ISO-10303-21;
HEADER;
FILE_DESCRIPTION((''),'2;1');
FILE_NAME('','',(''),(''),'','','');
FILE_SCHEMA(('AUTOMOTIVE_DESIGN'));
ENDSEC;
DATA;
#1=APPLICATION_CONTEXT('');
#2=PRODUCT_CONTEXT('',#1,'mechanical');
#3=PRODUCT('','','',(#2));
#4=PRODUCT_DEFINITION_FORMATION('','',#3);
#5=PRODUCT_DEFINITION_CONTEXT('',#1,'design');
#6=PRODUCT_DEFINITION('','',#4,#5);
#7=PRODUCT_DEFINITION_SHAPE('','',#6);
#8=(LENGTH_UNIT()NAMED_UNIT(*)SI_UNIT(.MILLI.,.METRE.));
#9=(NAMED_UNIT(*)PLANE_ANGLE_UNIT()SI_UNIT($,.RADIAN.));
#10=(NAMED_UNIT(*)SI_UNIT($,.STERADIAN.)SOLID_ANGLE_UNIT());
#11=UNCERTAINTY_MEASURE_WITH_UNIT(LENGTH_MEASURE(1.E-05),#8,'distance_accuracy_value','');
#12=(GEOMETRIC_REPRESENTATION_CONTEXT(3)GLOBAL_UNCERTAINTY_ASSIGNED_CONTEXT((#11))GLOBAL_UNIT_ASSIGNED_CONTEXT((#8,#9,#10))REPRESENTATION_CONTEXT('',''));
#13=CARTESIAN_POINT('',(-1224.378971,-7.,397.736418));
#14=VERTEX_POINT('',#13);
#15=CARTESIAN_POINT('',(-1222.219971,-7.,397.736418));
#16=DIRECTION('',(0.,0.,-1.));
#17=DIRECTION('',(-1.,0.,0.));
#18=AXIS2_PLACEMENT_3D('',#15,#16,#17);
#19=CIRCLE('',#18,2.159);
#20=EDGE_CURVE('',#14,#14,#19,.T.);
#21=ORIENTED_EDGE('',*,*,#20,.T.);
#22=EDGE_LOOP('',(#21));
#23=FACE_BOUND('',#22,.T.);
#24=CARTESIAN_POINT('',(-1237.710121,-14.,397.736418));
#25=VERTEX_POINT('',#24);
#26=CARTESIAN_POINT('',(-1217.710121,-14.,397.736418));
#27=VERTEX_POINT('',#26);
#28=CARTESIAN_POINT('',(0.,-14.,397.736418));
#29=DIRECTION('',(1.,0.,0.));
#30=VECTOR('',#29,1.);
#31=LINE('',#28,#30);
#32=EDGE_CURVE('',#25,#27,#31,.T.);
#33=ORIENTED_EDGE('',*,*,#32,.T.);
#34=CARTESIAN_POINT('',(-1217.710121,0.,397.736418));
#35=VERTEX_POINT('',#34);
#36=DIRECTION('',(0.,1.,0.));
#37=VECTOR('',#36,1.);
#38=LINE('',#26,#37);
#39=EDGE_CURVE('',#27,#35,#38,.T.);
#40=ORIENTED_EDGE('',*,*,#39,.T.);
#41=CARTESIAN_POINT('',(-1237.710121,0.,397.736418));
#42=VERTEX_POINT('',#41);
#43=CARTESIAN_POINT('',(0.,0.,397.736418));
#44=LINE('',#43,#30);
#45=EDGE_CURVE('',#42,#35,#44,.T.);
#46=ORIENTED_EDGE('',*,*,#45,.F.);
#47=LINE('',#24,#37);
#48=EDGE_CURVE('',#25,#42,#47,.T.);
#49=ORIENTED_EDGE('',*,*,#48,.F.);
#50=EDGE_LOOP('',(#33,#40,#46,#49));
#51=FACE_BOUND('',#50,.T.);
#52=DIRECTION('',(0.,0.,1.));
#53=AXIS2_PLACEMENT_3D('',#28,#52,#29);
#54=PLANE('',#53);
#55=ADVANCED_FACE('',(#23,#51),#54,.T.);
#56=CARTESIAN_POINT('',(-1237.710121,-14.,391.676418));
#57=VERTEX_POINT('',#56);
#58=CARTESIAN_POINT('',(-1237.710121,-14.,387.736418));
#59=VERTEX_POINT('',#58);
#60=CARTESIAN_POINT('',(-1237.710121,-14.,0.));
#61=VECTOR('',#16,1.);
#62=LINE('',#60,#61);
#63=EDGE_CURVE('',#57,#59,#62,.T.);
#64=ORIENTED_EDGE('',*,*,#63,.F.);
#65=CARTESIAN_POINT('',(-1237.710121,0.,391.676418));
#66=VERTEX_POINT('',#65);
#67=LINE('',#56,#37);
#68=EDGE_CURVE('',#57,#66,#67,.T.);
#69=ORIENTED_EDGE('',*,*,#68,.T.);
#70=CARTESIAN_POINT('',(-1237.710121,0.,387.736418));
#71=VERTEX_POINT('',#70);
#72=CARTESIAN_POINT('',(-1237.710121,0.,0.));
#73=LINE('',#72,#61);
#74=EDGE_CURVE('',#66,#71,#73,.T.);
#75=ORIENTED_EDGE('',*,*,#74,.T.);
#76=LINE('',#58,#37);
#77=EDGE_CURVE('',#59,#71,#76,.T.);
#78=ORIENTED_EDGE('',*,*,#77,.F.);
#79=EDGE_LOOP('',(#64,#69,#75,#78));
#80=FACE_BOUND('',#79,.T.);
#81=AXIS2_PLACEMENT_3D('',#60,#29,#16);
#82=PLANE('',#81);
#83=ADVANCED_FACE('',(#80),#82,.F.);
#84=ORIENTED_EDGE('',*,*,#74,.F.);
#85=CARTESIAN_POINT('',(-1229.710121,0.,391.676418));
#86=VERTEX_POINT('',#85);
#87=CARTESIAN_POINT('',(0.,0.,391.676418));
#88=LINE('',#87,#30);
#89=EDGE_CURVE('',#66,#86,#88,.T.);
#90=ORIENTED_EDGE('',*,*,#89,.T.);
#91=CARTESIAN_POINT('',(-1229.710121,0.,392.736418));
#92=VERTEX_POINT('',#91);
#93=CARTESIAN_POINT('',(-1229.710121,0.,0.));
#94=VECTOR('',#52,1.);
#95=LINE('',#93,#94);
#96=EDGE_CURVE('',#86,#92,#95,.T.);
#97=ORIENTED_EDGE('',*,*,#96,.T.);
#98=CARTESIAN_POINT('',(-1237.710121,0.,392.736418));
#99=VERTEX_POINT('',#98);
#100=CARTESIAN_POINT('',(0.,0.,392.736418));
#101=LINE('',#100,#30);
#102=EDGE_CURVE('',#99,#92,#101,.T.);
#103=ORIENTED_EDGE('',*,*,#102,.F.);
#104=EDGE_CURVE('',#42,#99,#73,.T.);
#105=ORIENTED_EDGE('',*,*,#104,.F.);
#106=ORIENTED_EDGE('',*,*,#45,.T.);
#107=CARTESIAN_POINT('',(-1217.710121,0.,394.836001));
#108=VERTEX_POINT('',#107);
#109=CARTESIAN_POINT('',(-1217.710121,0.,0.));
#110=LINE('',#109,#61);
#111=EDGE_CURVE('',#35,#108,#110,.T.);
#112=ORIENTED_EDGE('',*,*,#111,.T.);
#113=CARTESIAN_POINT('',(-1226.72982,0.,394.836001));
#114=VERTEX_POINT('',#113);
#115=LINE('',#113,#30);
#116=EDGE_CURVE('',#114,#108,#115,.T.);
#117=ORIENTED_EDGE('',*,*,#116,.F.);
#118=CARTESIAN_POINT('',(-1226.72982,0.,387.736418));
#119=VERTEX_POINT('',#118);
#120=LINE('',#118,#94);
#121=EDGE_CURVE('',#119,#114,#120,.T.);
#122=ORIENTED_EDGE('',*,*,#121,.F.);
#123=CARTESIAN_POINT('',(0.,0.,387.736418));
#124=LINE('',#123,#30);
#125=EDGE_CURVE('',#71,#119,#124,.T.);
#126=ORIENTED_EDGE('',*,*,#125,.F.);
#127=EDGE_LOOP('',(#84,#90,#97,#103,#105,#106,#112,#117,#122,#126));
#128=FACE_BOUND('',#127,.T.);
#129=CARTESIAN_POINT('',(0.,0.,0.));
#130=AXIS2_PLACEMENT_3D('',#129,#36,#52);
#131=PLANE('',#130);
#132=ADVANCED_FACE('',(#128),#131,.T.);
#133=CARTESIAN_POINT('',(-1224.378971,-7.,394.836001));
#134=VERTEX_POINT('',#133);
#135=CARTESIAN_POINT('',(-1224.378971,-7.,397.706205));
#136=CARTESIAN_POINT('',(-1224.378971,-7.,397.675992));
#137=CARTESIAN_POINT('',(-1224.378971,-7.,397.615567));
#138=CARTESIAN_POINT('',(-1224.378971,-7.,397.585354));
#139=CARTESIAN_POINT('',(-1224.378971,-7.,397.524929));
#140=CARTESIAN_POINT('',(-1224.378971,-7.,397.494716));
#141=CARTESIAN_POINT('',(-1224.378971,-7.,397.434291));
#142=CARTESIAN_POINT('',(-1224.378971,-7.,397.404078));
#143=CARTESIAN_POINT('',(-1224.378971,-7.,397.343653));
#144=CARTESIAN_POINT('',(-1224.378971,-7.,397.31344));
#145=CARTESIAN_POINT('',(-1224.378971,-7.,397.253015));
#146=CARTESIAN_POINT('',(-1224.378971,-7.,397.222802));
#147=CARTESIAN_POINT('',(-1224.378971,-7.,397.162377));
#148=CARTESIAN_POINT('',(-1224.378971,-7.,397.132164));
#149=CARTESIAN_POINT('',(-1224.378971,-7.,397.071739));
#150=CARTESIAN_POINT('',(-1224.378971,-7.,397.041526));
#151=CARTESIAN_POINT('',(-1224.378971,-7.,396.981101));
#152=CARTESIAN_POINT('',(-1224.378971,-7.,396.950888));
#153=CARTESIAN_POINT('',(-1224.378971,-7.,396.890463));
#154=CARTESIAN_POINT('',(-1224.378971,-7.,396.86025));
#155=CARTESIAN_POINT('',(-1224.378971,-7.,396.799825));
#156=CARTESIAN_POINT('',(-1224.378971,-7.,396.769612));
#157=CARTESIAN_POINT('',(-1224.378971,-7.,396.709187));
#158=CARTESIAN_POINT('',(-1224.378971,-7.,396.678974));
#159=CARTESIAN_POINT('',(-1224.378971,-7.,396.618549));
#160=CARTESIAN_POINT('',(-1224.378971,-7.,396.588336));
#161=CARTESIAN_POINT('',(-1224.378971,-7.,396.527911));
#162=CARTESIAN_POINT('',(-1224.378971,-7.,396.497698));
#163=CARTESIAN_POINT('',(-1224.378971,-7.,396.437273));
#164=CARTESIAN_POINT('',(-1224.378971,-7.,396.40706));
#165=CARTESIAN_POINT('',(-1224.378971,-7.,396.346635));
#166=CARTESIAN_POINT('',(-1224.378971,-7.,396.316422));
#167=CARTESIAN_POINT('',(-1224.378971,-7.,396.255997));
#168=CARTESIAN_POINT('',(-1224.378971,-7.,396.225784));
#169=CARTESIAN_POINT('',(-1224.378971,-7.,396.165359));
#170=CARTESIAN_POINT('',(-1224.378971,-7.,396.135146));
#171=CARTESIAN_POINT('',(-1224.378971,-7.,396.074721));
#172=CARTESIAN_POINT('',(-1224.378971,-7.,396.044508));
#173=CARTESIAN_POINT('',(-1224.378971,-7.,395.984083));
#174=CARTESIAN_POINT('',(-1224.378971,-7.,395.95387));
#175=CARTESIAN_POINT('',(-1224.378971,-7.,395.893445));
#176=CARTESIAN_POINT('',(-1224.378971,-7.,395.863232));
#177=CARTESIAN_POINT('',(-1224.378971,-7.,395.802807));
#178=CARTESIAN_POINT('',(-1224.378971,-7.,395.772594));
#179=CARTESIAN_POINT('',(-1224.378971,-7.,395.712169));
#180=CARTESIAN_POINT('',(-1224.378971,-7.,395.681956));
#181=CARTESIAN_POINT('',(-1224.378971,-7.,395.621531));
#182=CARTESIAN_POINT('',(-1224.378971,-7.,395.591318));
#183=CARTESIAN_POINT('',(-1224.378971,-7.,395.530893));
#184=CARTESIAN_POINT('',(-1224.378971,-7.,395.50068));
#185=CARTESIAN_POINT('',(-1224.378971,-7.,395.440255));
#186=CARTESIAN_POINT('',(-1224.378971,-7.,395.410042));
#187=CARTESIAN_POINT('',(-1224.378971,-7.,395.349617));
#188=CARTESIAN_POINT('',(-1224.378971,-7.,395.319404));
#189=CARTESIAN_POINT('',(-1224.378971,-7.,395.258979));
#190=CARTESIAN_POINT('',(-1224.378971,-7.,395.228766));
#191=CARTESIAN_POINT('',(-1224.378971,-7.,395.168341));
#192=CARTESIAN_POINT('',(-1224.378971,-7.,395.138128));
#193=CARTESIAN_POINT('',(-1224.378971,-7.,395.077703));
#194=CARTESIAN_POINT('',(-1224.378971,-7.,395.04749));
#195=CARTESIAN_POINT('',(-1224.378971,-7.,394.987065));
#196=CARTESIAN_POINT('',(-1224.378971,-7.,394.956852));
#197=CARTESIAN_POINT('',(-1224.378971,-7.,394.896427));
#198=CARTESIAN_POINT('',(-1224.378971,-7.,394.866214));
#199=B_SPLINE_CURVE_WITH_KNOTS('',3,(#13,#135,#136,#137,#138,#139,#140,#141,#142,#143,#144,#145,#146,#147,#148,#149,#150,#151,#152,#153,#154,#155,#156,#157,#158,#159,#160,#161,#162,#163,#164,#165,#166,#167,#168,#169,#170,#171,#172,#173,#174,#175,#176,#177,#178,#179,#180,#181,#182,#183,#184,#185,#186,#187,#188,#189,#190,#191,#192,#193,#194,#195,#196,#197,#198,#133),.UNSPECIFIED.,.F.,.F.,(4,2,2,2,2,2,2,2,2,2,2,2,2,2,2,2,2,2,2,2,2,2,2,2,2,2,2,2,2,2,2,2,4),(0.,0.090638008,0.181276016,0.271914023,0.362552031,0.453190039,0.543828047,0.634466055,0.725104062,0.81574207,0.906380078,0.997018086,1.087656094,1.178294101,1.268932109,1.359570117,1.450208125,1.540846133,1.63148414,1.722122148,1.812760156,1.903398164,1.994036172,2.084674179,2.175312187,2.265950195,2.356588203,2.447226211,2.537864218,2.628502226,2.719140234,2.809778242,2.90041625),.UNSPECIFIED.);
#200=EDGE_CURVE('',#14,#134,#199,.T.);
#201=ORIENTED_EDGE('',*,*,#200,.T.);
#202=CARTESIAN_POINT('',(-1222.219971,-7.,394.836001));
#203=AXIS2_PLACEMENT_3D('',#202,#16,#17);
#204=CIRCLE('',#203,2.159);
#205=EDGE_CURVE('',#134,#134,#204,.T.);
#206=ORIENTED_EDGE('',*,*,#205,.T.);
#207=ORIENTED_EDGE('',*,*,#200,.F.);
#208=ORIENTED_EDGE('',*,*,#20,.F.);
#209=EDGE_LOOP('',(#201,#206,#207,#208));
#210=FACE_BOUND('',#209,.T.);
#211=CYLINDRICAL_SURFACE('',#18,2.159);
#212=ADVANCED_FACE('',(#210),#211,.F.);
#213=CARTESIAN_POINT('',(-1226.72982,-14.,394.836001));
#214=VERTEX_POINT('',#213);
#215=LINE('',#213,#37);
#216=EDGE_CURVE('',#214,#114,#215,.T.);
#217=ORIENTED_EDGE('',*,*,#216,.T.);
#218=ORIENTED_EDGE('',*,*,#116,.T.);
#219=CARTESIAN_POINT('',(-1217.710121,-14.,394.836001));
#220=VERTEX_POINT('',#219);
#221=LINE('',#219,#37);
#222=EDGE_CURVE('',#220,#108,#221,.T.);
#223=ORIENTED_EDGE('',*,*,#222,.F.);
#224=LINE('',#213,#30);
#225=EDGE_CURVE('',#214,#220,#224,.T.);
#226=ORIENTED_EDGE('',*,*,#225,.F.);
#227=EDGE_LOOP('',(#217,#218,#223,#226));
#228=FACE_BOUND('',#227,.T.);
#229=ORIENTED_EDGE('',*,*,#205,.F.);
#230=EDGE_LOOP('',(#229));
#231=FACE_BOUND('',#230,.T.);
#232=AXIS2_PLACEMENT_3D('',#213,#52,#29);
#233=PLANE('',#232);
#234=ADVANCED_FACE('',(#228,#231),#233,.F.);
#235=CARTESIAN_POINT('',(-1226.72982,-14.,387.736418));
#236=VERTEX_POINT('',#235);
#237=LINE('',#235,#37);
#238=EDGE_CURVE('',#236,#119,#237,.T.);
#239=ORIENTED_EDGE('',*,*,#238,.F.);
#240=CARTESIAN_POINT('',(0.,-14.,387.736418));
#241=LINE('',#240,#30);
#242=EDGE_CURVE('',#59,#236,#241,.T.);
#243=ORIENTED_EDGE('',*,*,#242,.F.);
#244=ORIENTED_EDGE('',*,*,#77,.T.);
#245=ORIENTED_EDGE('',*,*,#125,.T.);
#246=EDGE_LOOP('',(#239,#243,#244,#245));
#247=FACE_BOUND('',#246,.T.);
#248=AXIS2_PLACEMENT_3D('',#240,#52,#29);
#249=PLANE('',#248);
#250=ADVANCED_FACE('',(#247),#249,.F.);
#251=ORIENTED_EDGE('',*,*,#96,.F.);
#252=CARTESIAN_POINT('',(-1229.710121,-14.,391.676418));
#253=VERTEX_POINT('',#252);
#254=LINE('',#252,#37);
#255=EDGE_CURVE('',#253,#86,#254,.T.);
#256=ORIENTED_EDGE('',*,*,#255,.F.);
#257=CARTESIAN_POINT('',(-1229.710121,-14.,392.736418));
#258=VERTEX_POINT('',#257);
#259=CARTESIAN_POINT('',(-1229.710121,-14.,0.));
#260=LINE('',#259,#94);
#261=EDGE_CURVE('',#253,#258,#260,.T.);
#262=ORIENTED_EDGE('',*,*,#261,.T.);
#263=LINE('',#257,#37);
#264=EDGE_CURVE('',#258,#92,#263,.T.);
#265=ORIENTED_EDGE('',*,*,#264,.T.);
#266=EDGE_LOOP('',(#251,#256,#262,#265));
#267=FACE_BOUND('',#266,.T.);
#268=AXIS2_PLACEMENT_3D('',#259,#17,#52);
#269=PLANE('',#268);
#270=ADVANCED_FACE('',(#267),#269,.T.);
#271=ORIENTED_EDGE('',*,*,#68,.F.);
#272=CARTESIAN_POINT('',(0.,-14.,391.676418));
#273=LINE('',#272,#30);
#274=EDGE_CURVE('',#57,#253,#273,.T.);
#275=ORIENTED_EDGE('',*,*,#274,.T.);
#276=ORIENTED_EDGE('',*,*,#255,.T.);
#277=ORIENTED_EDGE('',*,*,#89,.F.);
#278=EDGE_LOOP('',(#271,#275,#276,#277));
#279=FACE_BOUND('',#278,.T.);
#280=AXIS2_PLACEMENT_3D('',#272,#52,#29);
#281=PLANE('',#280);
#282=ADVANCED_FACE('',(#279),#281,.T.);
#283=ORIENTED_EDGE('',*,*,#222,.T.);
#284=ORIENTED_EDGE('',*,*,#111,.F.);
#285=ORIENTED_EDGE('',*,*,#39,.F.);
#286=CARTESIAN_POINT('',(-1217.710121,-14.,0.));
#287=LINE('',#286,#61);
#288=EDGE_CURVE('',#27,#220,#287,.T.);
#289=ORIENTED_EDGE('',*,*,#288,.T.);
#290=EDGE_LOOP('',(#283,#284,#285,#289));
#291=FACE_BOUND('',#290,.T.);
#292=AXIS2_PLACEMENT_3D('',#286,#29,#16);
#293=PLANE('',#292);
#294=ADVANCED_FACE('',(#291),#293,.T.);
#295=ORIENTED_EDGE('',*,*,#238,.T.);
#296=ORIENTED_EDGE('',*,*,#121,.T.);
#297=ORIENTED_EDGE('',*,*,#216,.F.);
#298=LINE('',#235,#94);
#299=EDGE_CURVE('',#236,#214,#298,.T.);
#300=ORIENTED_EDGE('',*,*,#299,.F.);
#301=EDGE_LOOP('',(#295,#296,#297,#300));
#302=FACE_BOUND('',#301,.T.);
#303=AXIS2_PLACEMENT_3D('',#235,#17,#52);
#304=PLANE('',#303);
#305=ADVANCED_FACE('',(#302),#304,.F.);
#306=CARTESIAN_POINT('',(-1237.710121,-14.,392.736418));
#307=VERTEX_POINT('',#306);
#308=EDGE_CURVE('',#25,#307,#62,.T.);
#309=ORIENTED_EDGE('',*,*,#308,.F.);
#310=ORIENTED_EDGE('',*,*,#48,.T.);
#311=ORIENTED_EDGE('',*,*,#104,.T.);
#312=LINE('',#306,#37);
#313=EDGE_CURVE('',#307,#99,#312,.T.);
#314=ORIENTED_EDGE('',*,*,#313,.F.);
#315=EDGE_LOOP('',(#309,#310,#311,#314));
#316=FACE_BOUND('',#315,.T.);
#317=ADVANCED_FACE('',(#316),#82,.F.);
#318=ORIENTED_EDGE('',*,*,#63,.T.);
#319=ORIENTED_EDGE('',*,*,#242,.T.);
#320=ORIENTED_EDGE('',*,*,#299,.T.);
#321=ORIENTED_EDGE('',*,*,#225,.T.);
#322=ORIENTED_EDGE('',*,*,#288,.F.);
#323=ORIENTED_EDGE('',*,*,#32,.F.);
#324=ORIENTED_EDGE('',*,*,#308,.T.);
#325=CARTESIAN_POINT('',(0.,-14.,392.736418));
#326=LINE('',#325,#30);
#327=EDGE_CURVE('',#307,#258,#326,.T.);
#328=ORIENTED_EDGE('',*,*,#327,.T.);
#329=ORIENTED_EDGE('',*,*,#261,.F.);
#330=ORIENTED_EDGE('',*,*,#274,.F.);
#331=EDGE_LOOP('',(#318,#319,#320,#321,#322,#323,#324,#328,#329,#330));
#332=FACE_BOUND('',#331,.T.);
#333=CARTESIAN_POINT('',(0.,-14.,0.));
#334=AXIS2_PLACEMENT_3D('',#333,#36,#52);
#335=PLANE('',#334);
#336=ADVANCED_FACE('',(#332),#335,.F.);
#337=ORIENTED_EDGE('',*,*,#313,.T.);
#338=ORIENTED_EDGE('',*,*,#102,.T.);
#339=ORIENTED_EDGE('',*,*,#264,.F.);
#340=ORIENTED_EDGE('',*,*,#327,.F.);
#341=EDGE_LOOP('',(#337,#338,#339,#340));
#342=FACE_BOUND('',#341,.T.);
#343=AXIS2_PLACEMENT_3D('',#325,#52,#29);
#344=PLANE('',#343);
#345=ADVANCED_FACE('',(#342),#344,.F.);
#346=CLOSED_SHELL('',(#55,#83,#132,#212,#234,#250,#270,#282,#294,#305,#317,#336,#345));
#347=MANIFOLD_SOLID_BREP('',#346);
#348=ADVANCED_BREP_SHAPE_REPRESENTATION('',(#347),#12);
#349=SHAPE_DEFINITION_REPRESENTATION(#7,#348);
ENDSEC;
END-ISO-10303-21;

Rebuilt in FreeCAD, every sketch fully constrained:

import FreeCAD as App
import Part
import Sketcher
from FreeCAD import Vector
Q = App.Units.Quantity

doc = App.newDocument("Part")
body = doc.addObject("PartDesign::Body", "Body")

# Sketch on XZ plane
sketch1 = body.newObject("Sketcher::SketchObject", "Sketch")
sketch1.AttachmentSupport = (doc.getObject("XZ_Plane"), [""])
sketch1.MapMode = "FlatFace"
sketch1.addGeometry(Part.LineSegment(Vector(-1237.7, 392.7, 0), Vector(-1237.7, 397.7, 0)), False)
sketch1.addGeometry(Part.LineSegment(Vector(-1237.7, 397.7, 0), Vector(-1217.7, 397.7, 0)), False)
sketch1.addGeometry(Part.LineSegment(Vector(-1217.7, 397.7, 0), Vector(-1217.7, 387.7, 0)), False)
sketch1.addGeometry(Part.LineSegment(Vector(-1217.7, 387.7, 0), Vector(-1237.7, 387.7, 0)), False)
sketch1.addGeometry(Part.LineSegment(Vector(-1237.7, 387.7, 0), Vector(-1237.7, 391.7, 0)), False)
sketch1.addGeometry(Part.LineSegment(Vector(-1237.7, 391.7, 0), Vector(-1229.7, 391.7, 0)), False)
sketch1.addGeometry(Part.LineSegment(Vector(-1229.7, 391.7, 0), Vector(-1229.7, 392.7, 0)), False)
sketch1.addGeometry(Part.LineSegment(Vector(-1229.7, 392.7, 0), Vector(-1237.7, 392.7, 0)), False)
sketch1.addConstraint(Sketcher.Constraint("Coincident", 0, 2, 1, 1))
sketch1.addConstraint(Sketcher.Constraint("Coincident", 1, 2, 2, 1))
sketch1.addConstraint(Sketcher.Constraint("Coincident", 2, 2, 3, 1))
sketch1.addConstraint(Sketcher.Constraint("Coincident", 3, 2, 4, 1))
sketch1.addConstraint(Sketcher.Constraint("Coincident", 4, 2, 5, 1))
sketch1.addConstraint(Sketcher.Constraint("Coincident", 5, 2, 6, 1))
sketch1.addConstraint(Sketcher.Constraint("Coincident", 6, 2, 7, 1))
sketch1.addConstraint(Sketcher.Constraint("Coincident", 7, 2, 0, 1))
sketch1.addConstraint(Sketcher.Constraint("Vertical", 0))
sketch1.addConstraint(Sketcher.Constraint("Horizontal", 1))
sketch1.addConstraint(Sketcher.Constraint("Vertical", 2))
sketch1.addConstraint(Sketcher.Constraint("Horizontal", 3))
sketch1.addConstraint(Sketcher.Constraint("Vertical", 4))
sketch1.addConstraint(Sketcher.Constraint("Horizontal", 5))
sketch1.addConstraint(Sketcher.Constraint("Vertical", 6))
sketch1.addConstraint(Sketcher.Constraint("Horizontal", 7))
sketch1.addConstraint(Sketcher.Constraint("Vertical", 0, 2, 3, 2))
sketch1.addConstraint(Sketcher.Constraint("DistanceX", 1, 1, 1, 2, Q("20 mm")))
sketch1.addConstraint(Sketcher.Constraint("DistanceX", 5, 1, 5, 2, Q("8 mm")))
sketch1.addConstraint(Sketcher.Constraint("DistanceY", 0, 1, 0, 2, Q("5 mm")))
sketch1.addConstraint(Sketcher.Constraint("DistanceY", 2, 2, 2, 1, Q("10 mm")))
sketch1.addConstraint(Sketcher.Constraint("DistanceY", 4, 1, 4, 2, Q("3.94 mm")))
sketch1.addConstraint(Sketcher.Constraint("DistanceX", 0, 2, -1, 1, Q("1237.710121 mm")))
sketch1.addConstraint(Sketcher.Constraint("DistanceY", -1, 1, 0, 2, Q("397.736418 mm")))
pad1 = body.newObject("PartDesign::Pad", "Pad")
pad1.Profile = sketch1
pad1.Length = 14

# Sketch on XZ plane
sketch2 = body.newObject("Sketcher::SketchObject", "Sketch001")
sketch2.AttachmentSupport = (doc.getObject("XZ_Plane"), [""])
sketch2.MapMode = "FlatFace"
sketch2.addGeometry(Part.LineSegment(Vector(-1227, 388, 0), Vector(-1227, 395, 0)), False)
sketch2.addGeometry(Part.LineSegment(Vector(-1227, 395, 0), Vector(-1218, 395, 0)), False)
sketch2.addGeometry(Part.LineSegment(Vector(-1218, 395, 0), Vector(-1218, 388, 0)), False)
sketch2.addGeometry(Part.LineSegment(Vector(-1218, 388, 0), Vector(-1227, 388, 0)), False)
sketch2.addConstraint(Sketcher.Constraint("Coincident", 0, 2, 1, 1))
sketch2.addConstraint(Sketcher.Constraint("Coincident", 1, 2, 2, 1))
sketch2.addConstraint(Sketcher.Constraint("Coincident", 2, 2, 3, 1))
sketch2.addConstraint(Sketcher.Constraint("Coincident", 3, 2, 0, 1))
sketch2.addConstraint(Sketcher.Constraint("Vertical", 0))
sketch2.addConstraint(Sketcher.Constraint("Horizontal", 1))
sketch2.addConstraint(Sketcher.Constraint("Vertical", 2))
sketch2.addConstraint(Sketcher.Constraint("Horizontal", 3))
sketch2.addConstraint(Sketcher.Constraint("DistanceX", 1, 1, 1, 2, Q("9.019699 mm")))
sketch2.addConstraint(Sketcher.Constraint("DistanceY", -1, 1, 0, 2, Q("394.836001 mm")))
sketch2.addConstraint(Sketcher.Constraint("DistanceY", 0, 1, 0, 2, Q("7.099584 mm")))
sketch2.addConstraint(Sketcher.Constraint("DistanceX", 0, 2, -1, 1, Q("1226.72982 mm")))
pocket1 = body.newObject("PartDesign::Pocket", "Pocket")
pocket1.Profile = sketch2
pocket1.Type = "ThroughAll"
pocket1.Reversed = True

# Sketch on XY plane
sketch3 = body.newObject("Sketcher::SketchObject", "Sketch002")
sketch3.AttachmentSupport = (doc.getObject("XY_Plane"), [""])
sketch3.MapMode = "FlatFace"
sketch3.AttachmentOffset = App.Placement(Vector(0, 0, 394.836001), App.Rotation())
sketch3.addGeometry(Part.Circle(Vector(-1222.2, -7, 0), Vector(0, 0, 1), 2.2), False)
sketch3.addConstraint(Sketcher.Constraint("Diameter", 0, Q("4.318 mm")))
sketch3.addConstraint(Sketcher.Constraint("DistanceY", 0, 3, -1, 1, Q("7 mm")))
sketch3.addConstraint(Sketcher.Constraint("DistanceX", 0, 3, -1, 1, Q("1222.219971 mm")))
pocket2 = body.newObject("PartDesign::Pocket", "Pocket001")
pocket2.Profile = sketch3
pocket2.Type = "ThroughAll"
pocket2.Reversed = True

doc.recompute()
